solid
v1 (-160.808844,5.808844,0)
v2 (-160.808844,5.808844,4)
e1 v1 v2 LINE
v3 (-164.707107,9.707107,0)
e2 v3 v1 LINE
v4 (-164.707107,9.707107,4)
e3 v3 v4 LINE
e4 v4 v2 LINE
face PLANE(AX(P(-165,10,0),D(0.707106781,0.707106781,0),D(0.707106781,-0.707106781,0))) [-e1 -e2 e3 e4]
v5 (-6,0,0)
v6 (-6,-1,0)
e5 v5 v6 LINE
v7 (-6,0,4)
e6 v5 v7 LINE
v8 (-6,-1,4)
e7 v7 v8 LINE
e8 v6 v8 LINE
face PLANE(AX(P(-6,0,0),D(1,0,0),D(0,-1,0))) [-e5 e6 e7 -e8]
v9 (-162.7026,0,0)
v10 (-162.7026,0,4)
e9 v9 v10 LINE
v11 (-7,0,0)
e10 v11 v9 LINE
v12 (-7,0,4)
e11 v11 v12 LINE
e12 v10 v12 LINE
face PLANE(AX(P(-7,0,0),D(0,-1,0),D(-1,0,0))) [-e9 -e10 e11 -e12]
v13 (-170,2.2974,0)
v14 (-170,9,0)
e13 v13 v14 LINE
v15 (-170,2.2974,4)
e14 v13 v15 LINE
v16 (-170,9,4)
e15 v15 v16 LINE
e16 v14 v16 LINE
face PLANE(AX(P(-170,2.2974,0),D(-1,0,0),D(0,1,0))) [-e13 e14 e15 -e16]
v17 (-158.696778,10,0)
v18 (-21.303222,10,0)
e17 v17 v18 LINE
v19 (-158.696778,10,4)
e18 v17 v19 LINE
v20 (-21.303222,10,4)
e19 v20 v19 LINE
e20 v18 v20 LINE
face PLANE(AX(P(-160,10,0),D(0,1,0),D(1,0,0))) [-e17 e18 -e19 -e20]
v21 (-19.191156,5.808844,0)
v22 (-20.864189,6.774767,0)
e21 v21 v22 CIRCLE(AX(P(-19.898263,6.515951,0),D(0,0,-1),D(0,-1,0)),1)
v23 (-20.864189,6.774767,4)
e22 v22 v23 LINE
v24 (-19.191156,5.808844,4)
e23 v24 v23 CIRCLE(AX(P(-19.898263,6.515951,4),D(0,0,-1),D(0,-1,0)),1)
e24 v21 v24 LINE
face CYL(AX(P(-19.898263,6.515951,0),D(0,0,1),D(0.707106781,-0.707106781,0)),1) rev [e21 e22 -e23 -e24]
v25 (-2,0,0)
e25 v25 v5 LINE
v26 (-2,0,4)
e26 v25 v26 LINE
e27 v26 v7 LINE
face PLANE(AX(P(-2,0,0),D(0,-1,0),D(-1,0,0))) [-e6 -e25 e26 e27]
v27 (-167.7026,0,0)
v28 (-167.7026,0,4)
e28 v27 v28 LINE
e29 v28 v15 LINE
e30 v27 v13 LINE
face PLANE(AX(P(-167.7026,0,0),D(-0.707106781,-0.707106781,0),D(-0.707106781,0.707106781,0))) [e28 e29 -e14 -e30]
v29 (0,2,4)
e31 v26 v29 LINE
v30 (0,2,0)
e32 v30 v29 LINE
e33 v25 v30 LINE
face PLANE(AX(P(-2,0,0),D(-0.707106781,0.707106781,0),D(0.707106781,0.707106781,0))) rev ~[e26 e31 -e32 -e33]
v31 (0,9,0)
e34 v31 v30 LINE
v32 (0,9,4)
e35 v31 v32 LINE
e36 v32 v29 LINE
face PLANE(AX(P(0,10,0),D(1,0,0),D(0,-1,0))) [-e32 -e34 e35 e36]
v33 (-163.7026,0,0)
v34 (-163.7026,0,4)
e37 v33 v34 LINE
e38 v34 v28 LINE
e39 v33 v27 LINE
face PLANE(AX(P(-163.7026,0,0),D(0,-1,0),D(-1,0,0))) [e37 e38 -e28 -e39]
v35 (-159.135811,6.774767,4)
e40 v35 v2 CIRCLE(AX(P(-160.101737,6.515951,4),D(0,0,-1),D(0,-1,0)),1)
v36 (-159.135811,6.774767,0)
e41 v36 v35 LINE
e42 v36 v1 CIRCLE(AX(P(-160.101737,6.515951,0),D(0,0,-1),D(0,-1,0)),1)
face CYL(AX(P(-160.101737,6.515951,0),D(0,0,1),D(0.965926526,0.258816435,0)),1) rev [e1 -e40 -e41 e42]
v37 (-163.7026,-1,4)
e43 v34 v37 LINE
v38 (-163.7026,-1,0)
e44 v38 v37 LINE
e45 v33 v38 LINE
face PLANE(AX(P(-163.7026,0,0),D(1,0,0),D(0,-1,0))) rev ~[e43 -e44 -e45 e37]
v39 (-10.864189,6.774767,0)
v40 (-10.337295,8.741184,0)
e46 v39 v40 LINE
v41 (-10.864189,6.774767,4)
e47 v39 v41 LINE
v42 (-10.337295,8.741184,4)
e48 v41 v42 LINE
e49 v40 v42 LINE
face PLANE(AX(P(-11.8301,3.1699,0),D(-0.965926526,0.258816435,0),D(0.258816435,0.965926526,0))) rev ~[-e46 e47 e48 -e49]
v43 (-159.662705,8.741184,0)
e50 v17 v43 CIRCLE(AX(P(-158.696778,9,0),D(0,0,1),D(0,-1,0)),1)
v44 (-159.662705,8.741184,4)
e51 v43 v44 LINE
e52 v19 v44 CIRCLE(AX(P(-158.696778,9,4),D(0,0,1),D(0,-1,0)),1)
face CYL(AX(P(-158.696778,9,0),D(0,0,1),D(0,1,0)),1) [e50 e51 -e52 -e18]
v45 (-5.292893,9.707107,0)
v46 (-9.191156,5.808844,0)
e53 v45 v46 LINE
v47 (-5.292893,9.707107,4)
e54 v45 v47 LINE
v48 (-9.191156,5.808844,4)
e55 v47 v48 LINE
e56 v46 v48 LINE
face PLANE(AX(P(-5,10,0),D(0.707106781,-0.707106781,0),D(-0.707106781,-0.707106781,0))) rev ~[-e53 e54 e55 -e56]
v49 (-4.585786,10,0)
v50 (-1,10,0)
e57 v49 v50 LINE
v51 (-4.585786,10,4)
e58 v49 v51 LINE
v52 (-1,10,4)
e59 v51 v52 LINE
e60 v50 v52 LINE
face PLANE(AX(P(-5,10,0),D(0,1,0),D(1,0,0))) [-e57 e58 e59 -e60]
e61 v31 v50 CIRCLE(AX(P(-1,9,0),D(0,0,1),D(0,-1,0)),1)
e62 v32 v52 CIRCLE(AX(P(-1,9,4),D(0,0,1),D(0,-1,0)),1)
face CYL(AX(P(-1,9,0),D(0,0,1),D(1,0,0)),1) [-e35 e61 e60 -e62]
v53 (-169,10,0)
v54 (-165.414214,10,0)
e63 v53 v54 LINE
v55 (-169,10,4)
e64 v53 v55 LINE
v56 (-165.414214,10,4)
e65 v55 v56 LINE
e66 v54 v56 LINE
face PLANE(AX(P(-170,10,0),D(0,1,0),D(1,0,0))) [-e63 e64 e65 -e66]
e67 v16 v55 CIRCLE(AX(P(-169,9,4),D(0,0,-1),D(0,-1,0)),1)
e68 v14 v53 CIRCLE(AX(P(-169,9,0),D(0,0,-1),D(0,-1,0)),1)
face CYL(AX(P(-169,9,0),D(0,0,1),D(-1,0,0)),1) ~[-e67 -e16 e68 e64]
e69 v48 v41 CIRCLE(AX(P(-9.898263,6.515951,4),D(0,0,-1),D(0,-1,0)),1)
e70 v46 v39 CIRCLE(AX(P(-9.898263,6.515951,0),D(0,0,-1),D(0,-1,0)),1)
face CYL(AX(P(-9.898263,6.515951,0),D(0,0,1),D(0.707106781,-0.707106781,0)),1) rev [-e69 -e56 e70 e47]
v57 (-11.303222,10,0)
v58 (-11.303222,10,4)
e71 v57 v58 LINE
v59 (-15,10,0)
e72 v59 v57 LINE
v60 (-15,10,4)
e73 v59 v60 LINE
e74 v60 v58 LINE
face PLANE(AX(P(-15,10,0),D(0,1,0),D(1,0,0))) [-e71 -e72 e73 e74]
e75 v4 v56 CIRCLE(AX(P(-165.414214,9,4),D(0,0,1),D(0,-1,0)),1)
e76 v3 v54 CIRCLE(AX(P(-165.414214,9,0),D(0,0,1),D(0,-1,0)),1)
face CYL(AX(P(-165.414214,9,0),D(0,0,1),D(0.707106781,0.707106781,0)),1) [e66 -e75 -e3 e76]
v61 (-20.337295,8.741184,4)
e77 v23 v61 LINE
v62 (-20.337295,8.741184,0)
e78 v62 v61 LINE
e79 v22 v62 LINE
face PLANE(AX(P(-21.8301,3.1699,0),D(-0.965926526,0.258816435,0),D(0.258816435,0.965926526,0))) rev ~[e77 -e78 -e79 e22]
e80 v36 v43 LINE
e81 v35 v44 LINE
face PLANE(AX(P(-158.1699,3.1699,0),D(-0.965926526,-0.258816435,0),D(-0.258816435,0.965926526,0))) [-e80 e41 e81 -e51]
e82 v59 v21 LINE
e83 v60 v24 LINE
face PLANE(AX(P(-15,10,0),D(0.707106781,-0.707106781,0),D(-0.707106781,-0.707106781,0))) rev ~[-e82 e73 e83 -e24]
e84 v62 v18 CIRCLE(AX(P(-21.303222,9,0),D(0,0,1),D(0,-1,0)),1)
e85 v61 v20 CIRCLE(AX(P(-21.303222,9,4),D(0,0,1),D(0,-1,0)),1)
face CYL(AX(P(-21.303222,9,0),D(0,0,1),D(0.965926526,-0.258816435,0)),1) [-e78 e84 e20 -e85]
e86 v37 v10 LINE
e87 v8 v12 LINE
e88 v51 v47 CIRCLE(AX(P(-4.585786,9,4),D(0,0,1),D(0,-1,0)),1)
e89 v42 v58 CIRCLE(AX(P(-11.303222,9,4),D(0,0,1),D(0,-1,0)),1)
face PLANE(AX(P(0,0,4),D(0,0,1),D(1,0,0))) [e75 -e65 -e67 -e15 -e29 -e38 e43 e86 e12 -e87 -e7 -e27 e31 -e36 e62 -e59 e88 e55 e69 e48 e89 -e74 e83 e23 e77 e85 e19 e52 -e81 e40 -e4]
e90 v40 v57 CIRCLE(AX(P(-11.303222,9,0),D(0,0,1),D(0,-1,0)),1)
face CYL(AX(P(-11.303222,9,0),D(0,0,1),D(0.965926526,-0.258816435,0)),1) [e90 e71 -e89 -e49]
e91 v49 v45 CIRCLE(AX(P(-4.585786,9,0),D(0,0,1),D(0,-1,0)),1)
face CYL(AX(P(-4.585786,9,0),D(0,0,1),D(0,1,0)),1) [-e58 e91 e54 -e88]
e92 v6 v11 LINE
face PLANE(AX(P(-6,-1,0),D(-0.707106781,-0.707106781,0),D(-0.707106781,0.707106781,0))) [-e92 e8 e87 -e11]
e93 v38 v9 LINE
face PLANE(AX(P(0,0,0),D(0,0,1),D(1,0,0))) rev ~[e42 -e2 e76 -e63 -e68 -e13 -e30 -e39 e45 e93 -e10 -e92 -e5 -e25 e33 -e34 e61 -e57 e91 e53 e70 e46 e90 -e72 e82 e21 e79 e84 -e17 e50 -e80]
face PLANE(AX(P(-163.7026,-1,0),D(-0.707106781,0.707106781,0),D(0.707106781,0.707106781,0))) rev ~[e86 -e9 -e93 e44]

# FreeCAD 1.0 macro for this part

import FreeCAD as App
import Part
import Sketcher

V = App.Vector
Q = App.Units.Quantity


def edges_at(feature, points):
    """Names of the edges that pass closest to the given points."""
    edges = feature.Shape.Edges
    near = lambda p: min(range(len(edges)), key=lambda i: edges[i].distToShape(Part.Vertex(*p))[0])
    return sorted({f"Edge{near(p) + 1}" for p in points})


def add_polygon(sketch, points):
    """Adds a closed chain of lines whose ends are joined by coincident constraints."""
    first, n = sketch.GeometryCount, len(points)
    for a, b in zip(points, points[1:] + points[:1]):
        sketch.addGeometry(Part.LineSegment(App.Vector(*a, 0), App.Vector(*b, 0)), False)
    for i in range(n):
        sketch.addConstraint(Sketcher.Constraint("Coincident", first + i, 2, first + (i + 1) % n, 1))

doc = App.newDocument("Part")
body = doc.addObject("PartDesign::Body", "Body")

# Sketch on XY plane
sketch1 = body.newObject("Sketcher::SketchObject", "Sketch")
sketch1.AttachmentSupport = (doc.getObject("XY_Plane"), [""])
sketch1.MapMode = "FlatFace"
add_polygon(sketch1, [(-2, 0), (0, 2), (0, 10), (-5, 10), (-11.8301, 3.1699), (-10, 10), (-15, 10), (-21.8301, 3.1699), (-20, 10), (-160, 10), (-158.1699, 3.1699), (-165, 10), (-170, 10), (-170, 2.2974), (-167.7026, 0), (-163.7026, 0), (-163.7026, -1), (-162.7026, 0), (-7, 0), (-6, -1), (-6, 0)])  # lines 0-20
sketch1.addConstraint(Sketcher.Constraint("Vertical", 1))
sketch1.addConstraint(Sketcher.Constraint("Horizontal", 2))
sketch1.addConstraint(Sketcher.Constraint("Horizontal", 5))
sketch1.addConstraint(Sketcher.Constraint("Horizontal", 8))
sketch1.addConstraint(Sketcher.Constraint("Horizontal", 11))
sketch1.addConstraint(Sketcher.Constraint("Vertical", 12))
sketch1.addConstraint(Sketcher.Constraint("Horizontal", 14))
sketch1.addConstraint(Sketcher.Constraint("Vertical", 15))
sketch1.addConstraint(Sketcher.Constraint("Horizontal", 17))
sketch1.addConstraint(Sketcher.Constraint("Vertical", 19))
sketch1.addConstraint(Sketcher.Constraint("Horizontal", 20))
sketch1.addConstraint(Sketcher.Constraint("PointOnObject", 0, 2, -2))
sketch1.addConstraint(Sketcher.Constraint("PointOnObject", 13, 2, -1))
sketch1.addConstraint(Sketcher.Constraint("PointOnObject", 16, 2, -1))
sketch1.addConstraint(Sketcher.Constraint("PointOnObject", 19, 2, -1))
sketch1.addConstraint(Sketcher.Constraint("Parallel", 0, 3))
sketch1.addConstraint(Sketcher.Constraint("Parallel", 3, 6))
sketch1.addConstraint(Sketcher.Constraint("Parallel", 4, 7))
sketch1.addConstraint(Sketcher.Constraint("Perpendicular", 6, 10))
sketch1.addConstraint(Sketcher.Constraint("Parallel", 10, 13))
sketch1.addConstraint(Sketcher.Constraint("Perpendicular", 13, 16))
sketch1.addConstraint(Sketcher.Constraint("Perpendicular", 16, 18))
sketch1.addConstraint(Sketcher.Constraint("Horizontal", 2, 2, 4, 2))
sketch1.addConstraint(Sketcher.Constraint("Horizontal", 3, 2, 6, 2))
sketch1.addConstraint(Sketcher.Constraint("Horizontal", 5, 2, 7, 2))
sketch1.addConstraint(Sketcher.Constraint("Horizontal", 6, 2, 9, 2))
sketch1.addConstraint(Sketcher.Constraint("Horizontal", 8, 2, 10, 2))
sketch1.addConstraint(Sketcher.Constraint("Horizontal", 15, 2, 18, 2))
sketch1.addConstraint(Sketcher.Constraint("Equal", 2, 5))
sketch1.addConstraint(Sketcher.Constraint("Equal", 5, 11))
sketch1.addConstraint(Sketcher.Constraint("Equal", 14, 20))
sketch1.addConstraint(Sketcher.Constraint("Equal", 7, 9))
sketch1.addConstraint(Sketcher.Constraint("Equal", 6, 10))
sketch1.addConstraint(Sketcher.Constraint("DistanceX", 2, 2, 2, 1, Q("5 mm")))
sketch1.addConstraint(Sketcher.Constraint("DistanceX", 14, 1, 14, 2, Q("4 mm")))
sketch1.addConstraint(Sketcher.Constraint("DistanceY", 15, 2, 15, 1, Q("1 mm")))
sketch1.addConstraint(Sketcher.Constraint("Angle", 4, Q("75.0002 deg")))
sketch1.addConstraint(Sketcher.Constraint("DistanceY", -1, 1, 0, 2, Q("2 mm")))
sketch1.addConstraint(Sketcher.Constraint("DistanceY", -1, 1, 1, 2, Q("10 mm")))
sketch1.addConstraint(Sketcher.Constraint("DistanceX", 4, 2, -1, 1, Q("10 mm")))
sketch1.addConstraint(Sketcher.Constraint("DistanceX", 8, 2, 4, 2, Q("150 mm")))
sketch1.addConstraint(Sketcher.Constraint("Distance", 13, Q("3.249 mm")))
pad1 = body.newObject("PartDesign::Pad", "Pad")
pad1.Profile = sketch1
pad1.Length = 4
doc.recompute()

fillet = body.newObject("PartDesign::Fillet", "Fillet")
fillet.Base = (pad1, edges_at(pad1, [(0, 10, 2), (-170, 10, 2)]))
fillet.Radius = 1
doc.recompute()

fillet2 = body.newObject("PartDesign::Fillet", "Fillet001")
fillet2.Base = (fillet, edges_at(fillet, [
    (-21.83, 3.17, 2),
    (-11.83, 3.17, 2),
    (-10, 10, 2),
    (-5, 10, 2),
    (-20, 10, 2),
    (-158.17, 3.17, 2),
    (-165, 10, 2),
    (-160, 10, 2),
]))
fillet2.Radius = 1

doc.recompute()
